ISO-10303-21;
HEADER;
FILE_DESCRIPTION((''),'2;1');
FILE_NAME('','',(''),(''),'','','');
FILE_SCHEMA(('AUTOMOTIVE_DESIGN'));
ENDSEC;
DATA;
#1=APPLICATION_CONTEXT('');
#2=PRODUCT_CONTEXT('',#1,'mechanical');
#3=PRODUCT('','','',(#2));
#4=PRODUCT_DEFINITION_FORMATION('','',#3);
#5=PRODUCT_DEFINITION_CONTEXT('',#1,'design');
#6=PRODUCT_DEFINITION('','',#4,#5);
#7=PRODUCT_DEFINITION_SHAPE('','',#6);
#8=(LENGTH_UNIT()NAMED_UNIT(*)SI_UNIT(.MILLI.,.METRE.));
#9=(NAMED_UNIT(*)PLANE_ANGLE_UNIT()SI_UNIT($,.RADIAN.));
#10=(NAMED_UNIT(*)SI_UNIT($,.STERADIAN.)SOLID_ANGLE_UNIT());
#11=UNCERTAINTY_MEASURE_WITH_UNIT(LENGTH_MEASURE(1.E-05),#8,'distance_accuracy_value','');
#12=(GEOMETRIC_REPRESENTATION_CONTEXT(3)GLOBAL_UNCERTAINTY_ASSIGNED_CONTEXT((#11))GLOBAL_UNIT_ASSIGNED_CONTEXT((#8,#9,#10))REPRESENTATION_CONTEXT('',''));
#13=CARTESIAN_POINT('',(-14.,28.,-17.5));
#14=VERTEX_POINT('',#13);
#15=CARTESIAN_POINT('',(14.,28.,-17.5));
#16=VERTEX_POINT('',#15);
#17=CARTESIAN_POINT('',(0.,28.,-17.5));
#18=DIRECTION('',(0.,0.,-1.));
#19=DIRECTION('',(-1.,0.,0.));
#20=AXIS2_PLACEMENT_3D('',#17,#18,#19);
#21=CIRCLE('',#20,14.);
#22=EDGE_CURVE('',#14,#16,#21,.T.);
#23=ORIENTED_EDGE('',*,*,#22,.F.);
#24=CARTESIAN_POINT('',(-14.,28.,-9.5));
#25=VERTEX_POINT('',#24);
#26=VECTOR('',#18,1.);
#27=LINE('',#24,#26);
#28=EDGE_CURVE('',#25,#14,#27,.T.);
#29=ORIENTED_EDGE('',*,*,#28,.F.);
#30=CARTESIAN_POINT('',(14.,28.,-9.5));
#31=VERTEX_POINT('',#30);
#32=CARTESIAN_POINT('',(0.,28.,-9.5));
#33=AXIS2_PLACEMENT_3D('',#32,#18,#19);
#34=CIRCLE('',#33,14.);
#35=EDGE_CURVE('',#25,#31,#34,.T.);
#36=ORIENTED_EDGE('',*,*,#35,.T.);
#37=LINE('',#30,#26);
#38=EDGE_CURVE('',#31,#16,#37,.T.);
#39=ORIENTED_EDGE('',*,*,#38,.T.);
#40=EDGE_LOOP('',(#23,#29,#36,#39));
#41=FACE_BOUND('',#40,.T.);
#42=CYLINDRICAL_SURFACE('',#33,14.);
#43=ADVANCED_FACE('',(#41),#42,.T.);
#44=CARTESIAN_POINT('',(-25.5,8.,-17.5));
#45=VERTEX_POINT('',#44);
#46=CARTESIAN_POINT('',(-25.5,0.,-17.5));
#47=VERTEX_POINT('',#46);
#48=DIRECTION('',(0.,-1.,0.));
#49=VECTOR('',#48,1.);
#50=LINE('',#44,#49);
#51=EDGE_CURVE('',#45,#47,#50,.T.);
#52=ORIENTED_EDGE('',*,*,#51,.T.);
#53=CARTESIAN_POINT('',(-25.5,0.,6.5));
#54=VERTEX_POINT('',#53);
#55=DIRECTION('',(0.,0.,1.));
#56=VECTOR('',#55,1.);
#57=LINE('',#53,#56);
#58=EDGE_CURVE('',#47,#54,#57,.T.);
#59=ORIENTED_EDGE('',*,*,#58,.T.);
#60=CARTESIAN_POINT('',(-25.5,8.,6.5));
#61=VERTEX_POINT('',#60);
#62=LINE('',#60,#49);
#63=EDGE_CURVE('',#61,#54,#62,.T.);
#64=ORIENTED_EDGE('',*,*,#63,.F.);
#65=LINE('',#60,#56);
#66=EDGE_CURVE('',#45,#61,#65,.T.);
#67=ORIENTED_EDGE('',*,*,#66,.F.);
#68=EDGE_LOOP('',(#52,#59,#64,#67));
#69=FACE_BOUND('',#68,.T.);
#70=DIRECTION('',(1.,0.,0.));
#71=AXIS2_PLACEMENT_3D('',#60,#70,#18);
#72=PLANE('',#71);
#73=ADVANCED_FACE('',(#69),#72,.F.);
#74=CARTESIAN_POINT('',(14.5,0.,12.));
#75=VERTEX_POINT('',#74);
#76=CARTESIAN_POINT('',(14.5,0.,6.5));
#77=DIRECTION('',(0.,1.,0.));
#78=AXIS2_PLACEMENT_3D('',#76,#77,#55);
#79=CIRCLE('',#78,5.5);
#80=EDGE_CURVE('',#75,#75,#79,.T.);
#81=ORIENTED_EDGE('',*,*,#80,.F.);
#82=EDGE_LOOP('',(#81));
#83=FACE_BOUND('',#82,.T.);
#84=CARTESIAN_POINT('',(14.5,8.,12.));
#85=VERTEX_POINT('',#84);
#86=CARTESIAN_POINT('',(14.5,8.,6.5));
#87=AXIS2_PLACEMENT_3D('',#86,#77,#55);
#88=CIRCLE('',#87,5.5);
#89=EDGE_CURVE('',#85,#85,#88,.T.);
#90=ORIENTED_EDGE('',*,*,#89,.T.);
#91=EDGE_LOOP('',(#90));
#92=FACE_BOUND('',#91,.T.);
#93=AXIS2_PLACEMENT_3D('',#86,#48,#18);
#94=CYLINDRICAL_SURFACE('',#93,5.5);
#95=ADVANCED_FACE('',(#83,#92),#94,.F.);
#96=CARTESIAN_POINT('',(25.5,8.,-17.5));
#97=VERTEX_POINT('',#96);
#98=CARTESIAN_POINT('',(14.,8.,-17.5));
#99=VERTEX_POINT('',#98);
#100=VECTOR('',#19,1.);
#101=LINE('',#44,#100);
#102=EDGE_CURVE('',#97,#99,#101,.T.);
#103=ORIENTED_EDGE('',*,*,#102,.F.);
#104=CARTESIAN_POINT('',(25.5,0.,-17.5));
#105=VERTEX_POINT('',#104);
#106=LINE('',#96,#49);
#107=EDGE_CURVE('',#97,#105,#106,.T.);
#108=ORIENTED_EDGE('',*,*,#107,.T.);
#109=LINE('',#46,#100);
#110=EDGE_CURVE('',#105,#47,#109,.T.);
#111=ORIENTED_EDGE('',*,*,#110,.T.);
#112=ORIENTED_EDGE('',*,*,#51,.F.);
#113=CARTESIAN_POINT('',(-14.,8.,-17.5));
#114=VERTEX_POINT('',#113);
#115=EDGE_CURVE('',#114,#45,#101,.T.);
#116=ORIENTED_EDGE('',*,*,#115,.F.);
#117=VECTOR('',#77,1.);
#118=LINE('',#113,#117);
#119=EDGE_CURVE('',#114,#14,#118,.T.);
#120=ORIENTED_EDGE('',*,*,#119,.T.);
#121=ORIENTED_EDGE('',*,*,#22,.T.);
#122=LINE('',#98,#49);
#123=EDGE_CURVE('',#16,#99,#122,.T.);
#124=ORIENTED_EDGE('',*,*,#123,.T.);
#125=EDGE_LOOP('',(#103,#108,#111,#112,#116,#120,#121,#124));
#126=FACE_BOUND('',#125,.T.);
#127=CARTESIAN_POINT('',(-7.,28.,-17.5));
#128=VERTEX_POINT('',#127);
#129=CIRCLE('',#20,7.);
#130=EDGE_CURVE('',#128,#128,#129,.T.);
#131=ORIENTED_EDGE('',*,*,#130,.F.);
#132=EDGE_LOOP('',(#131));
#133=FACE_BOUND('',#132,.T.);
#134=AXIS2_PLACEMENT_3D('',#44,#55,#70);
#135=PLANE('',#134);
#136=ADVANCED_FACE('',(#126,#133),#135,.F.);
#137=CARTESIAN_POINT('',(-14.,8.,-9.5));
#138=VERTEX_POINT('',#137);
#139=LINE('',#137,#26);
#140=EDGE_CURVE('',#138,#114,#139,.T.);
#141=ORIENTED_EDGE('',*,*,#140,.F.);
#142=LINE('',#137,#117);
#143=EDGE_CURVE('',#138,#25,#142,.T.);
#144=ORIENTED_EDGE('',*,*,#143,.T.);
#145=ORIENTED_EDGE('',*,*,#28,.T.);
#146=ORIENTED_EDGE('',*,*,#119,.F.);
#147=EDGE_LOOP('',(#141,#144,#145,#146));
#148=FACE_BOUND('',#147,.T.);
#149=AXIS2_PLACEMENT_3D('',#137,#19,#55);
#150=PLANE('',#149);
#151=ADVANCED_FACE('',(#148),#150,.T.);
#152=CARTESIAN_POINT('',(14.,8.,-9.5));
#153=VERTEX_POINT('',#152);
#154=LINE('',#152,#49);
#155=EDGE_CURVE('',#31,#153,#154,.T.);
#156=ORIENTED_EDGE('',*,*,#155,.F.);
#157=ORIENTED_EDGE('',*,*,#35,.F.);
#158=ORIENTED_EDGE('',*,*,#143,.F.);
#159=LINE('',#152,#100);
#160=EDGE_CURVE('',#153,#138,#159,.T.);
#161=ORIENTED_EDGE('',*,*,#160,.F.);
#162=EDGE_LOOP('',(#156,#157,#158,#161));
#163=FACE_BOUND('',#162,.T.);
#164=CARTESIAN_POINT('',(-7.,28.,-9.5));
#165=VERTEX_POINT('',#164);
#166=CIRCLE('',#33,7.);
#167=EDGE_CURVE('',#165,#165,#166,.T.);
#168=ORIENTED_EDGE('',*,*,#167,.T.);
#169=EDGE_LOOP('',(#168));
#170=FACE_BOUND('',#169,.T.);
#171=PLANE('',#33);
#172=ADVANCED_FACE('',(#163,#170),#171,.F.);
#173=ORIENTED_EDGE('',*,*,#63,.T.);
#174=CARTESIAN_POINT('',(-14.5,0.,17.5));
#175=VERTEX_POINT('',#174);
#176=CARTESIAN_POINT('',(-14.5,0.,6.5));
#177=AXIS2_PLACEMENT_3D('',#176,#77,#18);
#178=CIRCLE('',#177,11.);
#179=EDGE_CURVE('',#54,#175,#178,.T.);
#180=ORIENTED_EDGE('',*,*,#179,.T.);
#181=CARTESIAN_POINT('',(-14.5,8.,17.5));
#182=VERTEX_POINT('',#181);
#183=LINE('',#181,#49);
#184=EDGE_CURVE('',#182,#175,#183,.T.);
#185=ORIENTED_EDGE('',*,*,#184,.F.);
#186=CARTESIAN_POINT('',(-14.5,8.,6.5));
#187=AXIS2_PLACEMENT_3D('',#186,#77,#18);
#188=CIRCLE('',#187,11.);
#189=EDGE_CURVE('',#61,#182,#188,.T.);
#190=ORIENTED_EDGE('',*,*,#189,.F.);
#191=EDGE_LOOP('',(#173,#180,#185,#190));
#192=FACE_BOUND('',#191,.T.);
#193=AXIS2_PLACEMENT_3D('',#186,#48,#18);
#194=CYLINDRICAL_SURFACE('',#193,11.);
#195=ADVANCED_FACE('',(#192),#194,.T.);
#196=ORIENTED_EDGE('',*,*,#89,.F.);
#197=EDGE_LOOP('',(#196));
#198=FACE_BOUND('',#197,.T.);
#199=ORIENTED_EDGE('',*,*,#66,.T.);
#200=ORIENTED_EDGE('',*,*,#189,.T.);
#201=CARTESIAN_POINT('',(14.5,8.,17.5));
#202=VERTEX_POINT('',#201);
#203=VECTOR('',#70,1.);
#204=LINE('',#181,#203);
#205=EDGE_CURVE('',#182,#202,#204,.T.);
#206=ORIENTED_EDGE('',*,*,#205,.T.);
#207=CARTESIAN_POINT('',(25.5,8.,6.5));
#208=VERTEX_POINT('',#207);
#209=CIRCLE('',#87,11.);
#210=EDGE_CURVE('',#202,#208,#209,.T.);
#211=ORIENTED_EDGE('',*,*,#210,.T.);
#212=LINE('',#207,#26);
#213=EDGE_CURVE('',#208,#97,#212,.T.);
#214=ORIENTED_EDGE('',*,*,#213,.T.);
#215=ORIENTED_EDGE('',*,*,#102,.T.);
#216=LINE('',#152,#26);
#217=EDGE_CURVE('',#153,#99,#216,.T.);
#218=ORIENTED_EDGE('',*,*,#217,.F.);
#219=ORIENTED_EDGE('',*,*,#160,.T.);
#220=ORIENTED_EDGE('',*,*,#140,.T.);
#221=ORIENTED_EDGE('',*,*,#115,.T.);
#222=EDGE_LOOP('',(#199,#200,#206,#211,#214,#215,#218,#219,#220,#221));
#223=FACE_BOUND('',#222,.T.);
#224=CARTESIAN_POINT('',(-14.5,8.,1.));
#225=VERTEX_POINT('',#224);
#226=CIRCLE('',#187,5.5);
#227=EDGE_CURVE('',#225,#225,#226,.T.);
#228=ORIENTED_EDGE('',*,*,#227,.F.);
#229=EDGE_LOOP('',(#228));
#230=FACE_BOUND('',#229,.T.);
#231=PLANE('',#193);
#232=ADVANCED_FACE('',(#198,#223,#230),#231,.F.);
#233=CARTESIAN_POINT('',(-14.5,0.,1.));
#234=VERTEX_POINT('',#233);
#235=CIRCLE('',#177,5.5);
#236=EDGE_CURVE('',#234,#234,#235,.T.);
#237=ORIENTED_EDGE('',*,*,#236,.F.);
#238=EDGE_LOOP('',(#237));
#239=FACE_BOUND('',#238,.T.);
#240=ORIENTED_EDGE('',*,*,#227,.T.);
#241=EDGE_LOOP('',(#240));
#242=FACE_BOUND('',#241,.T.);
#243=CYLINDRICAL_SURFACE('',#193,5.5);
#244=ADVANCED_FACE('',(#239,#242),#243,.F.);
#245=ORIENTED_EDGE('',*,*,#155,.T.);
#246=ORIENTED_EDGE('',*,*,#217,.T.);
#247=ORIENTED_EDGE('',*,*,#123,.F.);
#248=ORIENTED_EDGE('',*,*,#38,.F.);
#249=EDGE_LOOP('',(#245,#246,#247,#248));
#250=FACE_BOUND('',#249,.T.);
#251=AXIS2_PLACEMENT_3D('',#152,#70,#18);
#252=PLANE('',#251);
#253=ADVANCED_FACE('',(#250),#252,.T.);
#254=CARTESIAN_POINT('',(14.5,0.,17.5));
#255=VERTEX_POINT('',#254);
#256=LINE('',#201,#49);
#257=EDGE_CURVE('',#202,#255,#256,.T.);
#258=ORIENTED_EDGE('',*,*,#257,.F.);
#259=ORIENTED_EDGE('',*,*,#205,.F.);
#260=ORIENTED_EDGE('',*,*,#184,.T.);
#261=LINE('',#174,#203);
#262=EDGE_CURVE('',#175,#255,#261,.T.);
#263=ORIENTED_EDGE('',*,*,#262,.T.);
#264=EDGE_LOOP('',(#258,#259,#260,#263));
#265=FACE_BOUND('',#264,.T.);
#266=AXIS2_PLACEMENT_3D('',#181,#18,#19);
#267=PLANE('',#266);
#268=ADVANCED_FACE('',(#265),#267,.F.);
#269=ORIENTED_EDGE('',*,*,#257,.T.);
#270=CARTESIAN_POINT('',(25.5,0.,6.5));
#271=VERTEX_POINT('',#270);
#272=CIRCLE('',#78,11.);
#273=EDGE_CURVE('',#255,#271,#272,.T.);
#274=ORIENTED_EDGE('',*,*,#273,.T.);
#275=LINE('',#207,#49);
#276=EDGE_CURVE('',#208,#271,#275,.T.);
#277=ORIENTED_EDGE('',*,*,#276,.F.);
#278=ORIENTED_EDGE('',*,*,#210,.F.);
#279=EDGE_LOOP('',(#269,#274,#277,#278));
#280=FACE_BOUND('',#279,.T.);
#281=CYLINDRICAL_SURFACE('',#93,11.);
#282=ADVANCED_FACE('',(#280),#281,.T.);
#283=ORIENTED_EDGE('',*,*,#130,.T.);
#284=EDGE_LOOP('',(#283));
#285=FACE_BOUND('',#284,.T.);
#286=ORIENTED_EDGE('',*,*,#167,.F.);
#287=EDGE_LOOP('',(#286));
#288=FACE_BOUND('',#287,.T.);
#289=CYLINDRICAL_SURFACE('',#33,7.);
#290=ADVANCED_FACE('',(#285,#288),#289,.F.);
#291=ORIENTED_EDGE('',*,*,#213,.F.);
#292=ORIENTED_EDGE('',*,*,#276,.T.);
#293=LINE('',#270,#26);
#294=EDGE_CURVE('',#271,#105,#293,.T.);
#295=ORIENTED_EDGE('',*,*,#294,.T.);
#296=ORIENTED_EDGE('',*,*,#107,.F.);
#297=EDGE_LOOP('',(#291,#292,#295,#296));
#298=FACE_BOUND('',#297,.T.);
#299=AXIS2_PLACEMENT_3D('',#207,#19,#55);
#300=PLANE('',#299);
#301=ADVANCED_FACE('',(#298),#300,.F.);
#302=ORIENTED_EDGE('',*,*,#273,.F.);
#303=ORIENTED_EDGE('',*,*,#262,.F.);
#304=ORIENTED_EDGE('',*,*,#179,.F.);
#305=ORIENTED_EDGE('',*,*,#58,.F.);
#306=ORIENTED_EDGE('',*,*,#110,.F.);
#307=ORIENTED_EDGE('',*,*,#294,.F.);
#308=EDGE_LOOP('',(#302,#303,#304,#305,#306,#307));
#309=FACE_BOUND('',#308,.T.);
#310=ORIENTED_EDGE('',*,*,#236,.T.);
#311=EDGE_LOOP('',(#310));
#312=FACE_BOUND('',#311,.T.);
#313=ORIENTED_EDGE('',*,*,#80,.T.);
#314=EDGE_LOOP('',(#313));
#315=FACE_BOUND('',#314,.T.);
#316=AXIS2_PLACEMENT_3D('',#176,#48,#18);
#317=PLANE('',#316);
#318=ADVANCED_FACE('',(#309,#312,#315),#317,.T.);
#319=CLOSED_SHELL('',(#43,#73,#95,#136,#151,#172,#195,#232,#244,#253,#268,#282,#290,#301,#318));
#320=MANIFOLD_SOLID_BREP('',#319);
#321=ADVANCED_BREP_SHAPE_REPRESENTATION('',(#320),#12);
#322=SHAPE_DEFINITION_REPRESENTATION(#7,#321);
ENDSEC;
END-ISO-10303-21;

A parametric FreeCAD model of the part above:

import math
import FreeCAD as App
import Part
import Sketcher

V = App.Vector
Q = App.Units.Quantity

doc = App.newDocument("Part")
params = doc.addObject("Spreadsheet::Sheet", "Params")
for row, (alias, value) in enumerate([
    ("sketch1_diameter", "11 mm"),
    ("sketch1_radius", "11 mm"),
    ("sketch1_width", "29 mm"),
    ("sketch1_height", "24 mm"),
    ("pad1_length", "8 mm"),
    ("sketch2_diameter", "14 mm"),
    ("sketch2_radius", "14 mm"),
    ("sketch2_height", "20 mm"),
    ("pad2_length", "8 mm"),
], start=1):
    params.set(f"A{row}", alias)
    params.set(f"B{row}", "=" + value)
    params.setAlias(f"B{row}", alias)

body = doc.addObject("PartDesign::Body", "Body")

# Sketch on XZ plane
sketch1 = body.newObject("Sketcher::SketchObject", "Sketch")
sketch1.AttachmentSupport = (doc.getObject("XZ_Plane"), [""])
sketch1.MapMode = "FlatFace"
sketch1.addGeometry([
    Part.LineSegment(V(-14.5, 17.5, 0), V(14.5, 17.5, 0)),  # 0
    Part.ArcOfCircle(Part.Circle(V(14.5, 6.5, 0), V(0, 0, 1), 11), math.radians(0), math.radians(90)),  # 1
    Part.LineSegment(V(25.5, 6.5, 0), V(25.5, -17.5, 0)),  # 2
    Part.LineSegment(V(25.5, -17.5, 0), V(-25.5, -17.5, 0)),  # 3
    Part.LineSegment(V(-25.5, -17.5, 0), V(-25.5, 6.5, 0)),  # 4
    Part.ArcOfCircle(Part.Circle(V(-14.5, 6.5, 0), V(0, 0, 1), 11), math.radians(90), math.radians(180)),  # 5
    Part.Circle(V(-14.5, 6.5, 0), V(0, 0, 1), 5.5),  # 6
    Part.Circle(V(14.5, 6.5, 0), V(0, 0, 1), 5.5),  # 7
], False)
sketch1.addConstraint([
    Sketcher.Constraint("Tangent", 0, 2, 1, 2),
    Sketcher.Constraint("Tangent", 1, 1, 2, 1),
    Sketcher.Constraint("Coincident", 2, 2, 3, 1),
    Sketcher.Constraint("Coincident", 3, 2, 4, 1),
    Sketcher.Constraint("Tangent", 4, 2, 5, 2),
    Sketcher.Constraint("Tangent", 5, 1, 0, 1),
    Sketcher.Constraint("Horizontal", 0),
    Sketcher.Constraint("Vertical", 2),
    Sketcher.Constraint("Horizontal", 3),
    Sketcher.Constraint("Vertical", 4),
    Sketcher.Constraint("Coincident", 6, 3, 5, 3),
    Sketcher.Constraint("Coincident", 7, 3, 1, 3),
    Sketcher.Constraint("Equal", 1, 5),
    Sketcher.Constraint("Equal", 6, 7),
    Sketcher.Constraint("Diameter", 6, Q("11 mm")),
    Sketcher.Constraint("Radius", 1, Q("11 mm")),
    Sketcher.Constraint("DistanceX", 0, 1, 0, 2, Q("29 mm")),
    Sketcher.Constraint("DistanceY", 2, 2, 2, 1, Q("24 mm")),
    Sketcher.Constraint("DistanceX", -1, 1, 1, 3, Q("14.5 mm")),
    Sketcher.Constraint("DistanceY", -1, 1, 1, 3, Q("6.5 mm")),
])
sketch1.setExpression("Constraints[14]", "Params.sketch1_diameter")
sketch1.setExpression("Constraints[15]", "Params.sketch1_radius")
sketch1.setExpression("Constraints[16]", "Params.sketch1_width")
sketch1.setExpression("Constraints[17]", "Params.sketch1_height")
pad1 = body.newObject("PartDesign::Pad", "Pad")
pad1.Profile = sketch1
pad1.setExpression("Length", "Params.pad1_length")
pad1.Reversed = True

# Sketch on XY plane
sketch2 = body.newObject("Sketcher::SketchObject", "Sketch001")
sketch2.AttachmentSupport = (doc.getObject("XY_Plane"), [""])
sketch2.MapMode = "FlatFace"
sketch2.AttachmentOffset = App.Placement(V(0, 0, -17.5), App.Rotation())
sketch2.addGeometry([
    Part.LineSegment(V(14, 8, 0), V(-14, 8, 0)),  # 0
    Part.LineSegment(V(-14, 8, 0), V(-14, 28, 0)),  # 1
    Part.ArcOfCircle(Part.Circle(V(0, 28, 0), V(0, 0, 1), 14), math.radians(0), math.radians(180)),  # 2
    Part.LineSegment(V(14, 28, 0), V(14, 8, 0)),  # 3
    Part.Circle(V(0, 28, 0), V(0, 0, 1), 7),  # 4
], False)
sketch2.addConstraint([
    Sketcher.Constraint("Coincident", 0, 2, 1, 1),
    Sketcher.Constraint("Tangent", 1, 2, 2, 2),
    Sketcher.Constraint("Tangent", 2, 1, 3, 1),
    Sketcher.Constraint("Coincident", 3, 2, 0, 1),
    Sketcher.Constraint("Horizontal", 0),
    Sketcher.Constraint("Vertical", 1),
    Sketcher.Constraint("Vertical", 3),
    Sketcher.Constraint("Coincident", 4, 3, 2, 3),
    Sketcher.Constraint("PointOnObject", 2, 3, -2),
    Sketcher.Constraint("Diameter", 4, Q("14 mm")),
    Sketcher.Constraint("Radius", 2, Q("14 mm")),
    Sketcher.Constraint("DistanceY", 1, 1, 1, 2, Q("20 mm")),
    Sketcher.Constraint("DistanceY", -1, 1, 2, 3, Q("28 mm")),
])
sketch2.setExpression("Constraints[9]", "Params.sketch2_diameter")
sketch2.setExpression("Constraints[10]", "Params.sketch2_radius")
sketch2.setExpression("Constraints[11]", "Params.sketch2_height")
pad2 = body.newObject("PartDesign::Pad", "Pad001")
pad2.Profile = sketch2
pad2.setExpression("Length", "Params.pad2_length")

doc.recompute()
